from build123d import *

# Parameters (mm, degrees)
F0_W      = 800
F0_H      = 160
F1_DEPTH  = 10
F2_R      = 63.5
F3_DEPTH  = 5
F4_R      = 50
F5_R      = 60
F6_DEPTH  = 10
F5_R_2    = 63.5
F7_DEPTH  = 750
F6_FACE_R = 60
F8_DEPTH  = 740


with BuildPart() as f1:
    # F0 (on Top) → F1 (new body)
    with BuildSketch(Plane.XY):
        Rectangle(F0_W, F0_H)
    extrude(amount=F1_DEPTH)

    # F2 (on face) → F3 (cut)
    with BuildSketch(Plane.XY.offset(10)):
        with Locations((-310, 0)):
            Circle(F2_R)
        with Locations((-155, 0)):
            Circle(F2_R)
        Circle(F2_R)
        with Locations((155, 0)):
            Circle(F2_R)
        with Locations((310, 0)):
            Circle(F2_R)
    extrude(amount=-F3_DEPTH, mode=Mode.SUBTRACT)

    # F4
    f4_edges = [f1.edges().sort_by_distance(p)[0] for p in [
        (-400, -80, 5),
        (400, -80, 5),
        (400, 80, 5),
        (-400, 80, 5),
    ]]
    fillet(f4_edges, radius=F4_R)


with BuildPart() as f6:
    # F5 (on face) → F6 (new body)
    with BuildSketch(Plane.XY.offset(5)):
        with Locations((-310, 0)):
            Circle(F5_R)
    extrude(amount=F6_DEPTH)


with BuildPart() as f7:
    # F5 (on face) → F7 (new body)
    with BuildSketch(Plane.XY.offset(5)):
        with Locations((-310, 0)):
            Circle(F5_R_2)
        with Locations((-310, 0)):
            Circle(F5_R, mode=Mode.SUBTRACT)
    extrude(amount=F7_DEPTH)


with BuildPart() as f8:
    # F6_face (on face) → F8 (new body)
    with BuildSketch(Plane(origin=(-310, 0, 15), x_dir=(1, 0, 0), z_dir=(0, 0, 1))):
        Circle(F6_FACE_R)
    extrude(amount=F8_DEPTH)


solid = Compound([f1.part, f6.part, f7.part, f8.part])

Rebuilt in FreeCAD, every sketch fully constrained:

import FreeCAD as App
import Part
import Sketcher

V = App.Vector
Q = App.Units.Quantity


def edges_at(feature, points):
    """Names of the edges that pass closest to the given points."""
    edges = feature.Shape.Edges
    near = lambda p: min(range(len(edges)), key=lambda i: edges[i].distToShape(Part.Vertex(*p))[0])
    return sorted({f"Edge{near(p) + 1}" for p in points})


def add_polygon(sketch, points):
    """Adds a closed chain of lines whose ends are joined by coincident constraints."""
    first, n = sketch.GeometryCount, len(points)
    for a, b in zip(points, points[1:] + points[:1]):
        sketch.addGeometry(Part.LineSegment(App.Vector(*a, 0), App.Vector(*b, 0)), False)
    for i in range(n):
        sketch.addConstraint(Sketcher.Constraint("Coincident", first + i, 2, first + (i + 1) % n, 1))

doc = App.newDocument("Part")
body = doc.addObject("PartDesign::Body", "Body")

# Sketch on XY plane
sketch1 = body.newObject("Sketcher::SketchObject", "Sketch")
sketch1.AttachmentSupport = (doc.getObject("XY_Plane"), [""])
sketch1.MapMode = "FlatFace"
add_polygon(sketch1, [(-400, 80), (-400, -80), (400, -80), (400, 80)])  # lines 0-3
sketch1.addConstraint([
    Sketcher.Constraint("Vertical", 0),
    Sketcher.Constraint("Horizontal", 1),
    Sketcher.Constraint("Vertical", 2),
    Sketcher.Constraint("Horizontal", 3),
    Sketcher.Constraint("Symmetric", 0, 2, 2, 2, -1, 1),
    Sketcher.Constraint("DistanceX", 1, 1, 1, 2, Q("800 mm")),
    Sketcher.Constraint("DistanceY", 0, 2, 0, 1, Q("160 mm")),
])
pad1 = body.newObject("PartDesign::Pad", "Pad")
pad1.Profile = sketch1
pad1.Length = 10

# Sketch on XY plane
sketch2 = body.newObject("Sketcher::SketchObject", "Sketch001")
sketch2.AttachmentSupport = (doc.getObject("XY_Plane"), [""])
sketch2.MapMode = "FlatFace"
sketch2.AttachmentOffset = App.Placement(V(0, 0, 10), App.Rotation())
sketch2.addGeometry([
    Part.Circle(V(-310, 0, 0), V(0, 0, 1), 63.5),  # 0
    Part.Circle(V(-155, 0, 0), V(0, 0, 1), 63.5),  # 1
    Part.Circle(V(0, 0, 0), V(0, 0, 1), 63.5),  # 2
    Part.Circle(V(155, 0, 0), V(0, 0, 1), 63.5),  # 3
    Part.Circle(V(310, 0, 0), V(0, 0, 1), 63.5),  # 4
], False)
sketch2.addConstraint([
    Sketcher.Constraint("Coincident", 2, 3, -1, 1),
    Sketcher.Constraint("Equal", 0, 1),
    Sketcher.Constraint("Equal", 1, 2),
    Sketcher.Constraint("Equal", 2, 3),
    Sketcher.Constraint("Equal", 3, 4),
    Sketcher.Constraint("Symmetric", 1, 3, 3, 3, -1, 1),
    Sketcher.Constraint("Symmetric", 0, 3, 4, 3, -1, 1),
    Sketcher.Constraint("PointOnObject", 0, 3, -1),
    Sketcher.Constraint("PointOnObject", 1, 3, -1),
    Sketcher.Constraint("Diameter", 0, Q("127 mm")),
    Sketcher.Constraint("DistanceX", 0, 3, -1, 1, Q("310 mm")),
    Sketcher.Constraint("DistanceX", 1, 3, -1, 1, Q("155 mm")),
])
pocket1 = body.newObject("PartDesign::Pocket", "Pocket")
pocket1.Profile = sketch2
pocket1.Length = 5
doc.recompute()

fillet = body.newObject("PartDesign::Fillet", "Fillet")
fillet.Base = (pocket1, edges_at(pocket1, [
    (-400, -80, 5),
    (400, -80, 5),
    (400, 80, 5),
    (-400, 80, 5),
]))
fillet.Radius = 50
body2 = doc.addObject("PartDesign::Body", "Body001")

# Sketch on XY plane
sketch3 = body2.newObject("Sketcher::SketchObject", "Sketch002")
sketch3.AttachmentSupport = (doc.getObject("XY_Plane001"), [""])
sketch3.MapMode = "FlatFace"
sketch3.AttachmentOffset = App.Placement(V(0, 0, 5), App.Rotation())
sketch3.addGeometry(Part.Circle(V(-310, 0, 0), V(0, 0, 1), 60), False)
sketch3.addConstraint([
    Sketcher.Constraint("PointOnObject", 0, 3, -1),
    Sketcher.Constraint("Diameter", 0, Q("120 mm")),
    Sketcher.Constraint("DistanceX", 0, 3, -1, 1, Q("310 mm")),
])
pad2 = body2.newObject("PartDesign::Pad", "Pad001")
pad2.Profile = sketch3
pad2.Length = 10
body3 = doc.addObject("PartDesign::Body", "Body002")

# Sketch on XY plane
sketch4 = body3.newObject("Sketcher::SketchObject", "Sketch003")
sketch4.AttachmentSupport = (doc.getObject("XY_Plane002"), [""])
sketch4.MapMode = "FlatFace"
sketch4.AttachmentOffset = App.Placement(V(0, 0, 5), App.Rotation())
sketch4.addGeometry([
    Part.Circle(V(-310, 0, 0), V(0, 0, 1), 63.5),
    Part.Circle(V(-310, 0, 0), V(0, 0, 1), 60),
], False)
sketch4.addConstraint([
    Sketcher.Constraint("Coincident", 1, 3, 0, 3),
    Sketcher.Constraint("PointOnObject", 0, 3, -1),
    Sketcher.Constraint("Diameter", 0, Q("127 mm")),
    Sketcher.Constraint("Diameter", 1, Q("120 mm")),
    Sketcher.Constraint("DistanceX", 0, 3, -1, 1, Q("310 mm")),
])
pad3 = body3.newObject("PartDesign::Pad", "Pad002")
pad3.Profile = sketch4
pad3.Length = 750
body4 = doc.addObject("PartDesign::Body", "Body003")

# Sketch on XY plane
sketch5 = body4.newObject("Sketcher::SketchObject", "Sketch004")
sketch5.AttachmentSupport = (doc.getObject("XY_Plane003"), [""])
sketch5.MapMode = "FlatFace"
sketch5.AttachmentOffset = App.Placement(V(0, 0, 15), App.Rotation())
sketch5.addGeometry(Part.Circle(V(-310, 0, 0), V(0, 0, 1), 60), False)
sketch5.addConstraint([
    Sketcher.Constraint("PointOnObject", 0, 3, -1),
    Sketcher.Constraint("Diameter", 0, Q("120 mm")),
    Sketcher.Constraint("DistanceX", 0, 3, -1, 1, Q("310 mm")),
])
pad4 = body4.newObject("PartDesign::Pad", "Pad003")
pad4.Profile = sketch5
pad4.Length = 740

doc.recompute()
